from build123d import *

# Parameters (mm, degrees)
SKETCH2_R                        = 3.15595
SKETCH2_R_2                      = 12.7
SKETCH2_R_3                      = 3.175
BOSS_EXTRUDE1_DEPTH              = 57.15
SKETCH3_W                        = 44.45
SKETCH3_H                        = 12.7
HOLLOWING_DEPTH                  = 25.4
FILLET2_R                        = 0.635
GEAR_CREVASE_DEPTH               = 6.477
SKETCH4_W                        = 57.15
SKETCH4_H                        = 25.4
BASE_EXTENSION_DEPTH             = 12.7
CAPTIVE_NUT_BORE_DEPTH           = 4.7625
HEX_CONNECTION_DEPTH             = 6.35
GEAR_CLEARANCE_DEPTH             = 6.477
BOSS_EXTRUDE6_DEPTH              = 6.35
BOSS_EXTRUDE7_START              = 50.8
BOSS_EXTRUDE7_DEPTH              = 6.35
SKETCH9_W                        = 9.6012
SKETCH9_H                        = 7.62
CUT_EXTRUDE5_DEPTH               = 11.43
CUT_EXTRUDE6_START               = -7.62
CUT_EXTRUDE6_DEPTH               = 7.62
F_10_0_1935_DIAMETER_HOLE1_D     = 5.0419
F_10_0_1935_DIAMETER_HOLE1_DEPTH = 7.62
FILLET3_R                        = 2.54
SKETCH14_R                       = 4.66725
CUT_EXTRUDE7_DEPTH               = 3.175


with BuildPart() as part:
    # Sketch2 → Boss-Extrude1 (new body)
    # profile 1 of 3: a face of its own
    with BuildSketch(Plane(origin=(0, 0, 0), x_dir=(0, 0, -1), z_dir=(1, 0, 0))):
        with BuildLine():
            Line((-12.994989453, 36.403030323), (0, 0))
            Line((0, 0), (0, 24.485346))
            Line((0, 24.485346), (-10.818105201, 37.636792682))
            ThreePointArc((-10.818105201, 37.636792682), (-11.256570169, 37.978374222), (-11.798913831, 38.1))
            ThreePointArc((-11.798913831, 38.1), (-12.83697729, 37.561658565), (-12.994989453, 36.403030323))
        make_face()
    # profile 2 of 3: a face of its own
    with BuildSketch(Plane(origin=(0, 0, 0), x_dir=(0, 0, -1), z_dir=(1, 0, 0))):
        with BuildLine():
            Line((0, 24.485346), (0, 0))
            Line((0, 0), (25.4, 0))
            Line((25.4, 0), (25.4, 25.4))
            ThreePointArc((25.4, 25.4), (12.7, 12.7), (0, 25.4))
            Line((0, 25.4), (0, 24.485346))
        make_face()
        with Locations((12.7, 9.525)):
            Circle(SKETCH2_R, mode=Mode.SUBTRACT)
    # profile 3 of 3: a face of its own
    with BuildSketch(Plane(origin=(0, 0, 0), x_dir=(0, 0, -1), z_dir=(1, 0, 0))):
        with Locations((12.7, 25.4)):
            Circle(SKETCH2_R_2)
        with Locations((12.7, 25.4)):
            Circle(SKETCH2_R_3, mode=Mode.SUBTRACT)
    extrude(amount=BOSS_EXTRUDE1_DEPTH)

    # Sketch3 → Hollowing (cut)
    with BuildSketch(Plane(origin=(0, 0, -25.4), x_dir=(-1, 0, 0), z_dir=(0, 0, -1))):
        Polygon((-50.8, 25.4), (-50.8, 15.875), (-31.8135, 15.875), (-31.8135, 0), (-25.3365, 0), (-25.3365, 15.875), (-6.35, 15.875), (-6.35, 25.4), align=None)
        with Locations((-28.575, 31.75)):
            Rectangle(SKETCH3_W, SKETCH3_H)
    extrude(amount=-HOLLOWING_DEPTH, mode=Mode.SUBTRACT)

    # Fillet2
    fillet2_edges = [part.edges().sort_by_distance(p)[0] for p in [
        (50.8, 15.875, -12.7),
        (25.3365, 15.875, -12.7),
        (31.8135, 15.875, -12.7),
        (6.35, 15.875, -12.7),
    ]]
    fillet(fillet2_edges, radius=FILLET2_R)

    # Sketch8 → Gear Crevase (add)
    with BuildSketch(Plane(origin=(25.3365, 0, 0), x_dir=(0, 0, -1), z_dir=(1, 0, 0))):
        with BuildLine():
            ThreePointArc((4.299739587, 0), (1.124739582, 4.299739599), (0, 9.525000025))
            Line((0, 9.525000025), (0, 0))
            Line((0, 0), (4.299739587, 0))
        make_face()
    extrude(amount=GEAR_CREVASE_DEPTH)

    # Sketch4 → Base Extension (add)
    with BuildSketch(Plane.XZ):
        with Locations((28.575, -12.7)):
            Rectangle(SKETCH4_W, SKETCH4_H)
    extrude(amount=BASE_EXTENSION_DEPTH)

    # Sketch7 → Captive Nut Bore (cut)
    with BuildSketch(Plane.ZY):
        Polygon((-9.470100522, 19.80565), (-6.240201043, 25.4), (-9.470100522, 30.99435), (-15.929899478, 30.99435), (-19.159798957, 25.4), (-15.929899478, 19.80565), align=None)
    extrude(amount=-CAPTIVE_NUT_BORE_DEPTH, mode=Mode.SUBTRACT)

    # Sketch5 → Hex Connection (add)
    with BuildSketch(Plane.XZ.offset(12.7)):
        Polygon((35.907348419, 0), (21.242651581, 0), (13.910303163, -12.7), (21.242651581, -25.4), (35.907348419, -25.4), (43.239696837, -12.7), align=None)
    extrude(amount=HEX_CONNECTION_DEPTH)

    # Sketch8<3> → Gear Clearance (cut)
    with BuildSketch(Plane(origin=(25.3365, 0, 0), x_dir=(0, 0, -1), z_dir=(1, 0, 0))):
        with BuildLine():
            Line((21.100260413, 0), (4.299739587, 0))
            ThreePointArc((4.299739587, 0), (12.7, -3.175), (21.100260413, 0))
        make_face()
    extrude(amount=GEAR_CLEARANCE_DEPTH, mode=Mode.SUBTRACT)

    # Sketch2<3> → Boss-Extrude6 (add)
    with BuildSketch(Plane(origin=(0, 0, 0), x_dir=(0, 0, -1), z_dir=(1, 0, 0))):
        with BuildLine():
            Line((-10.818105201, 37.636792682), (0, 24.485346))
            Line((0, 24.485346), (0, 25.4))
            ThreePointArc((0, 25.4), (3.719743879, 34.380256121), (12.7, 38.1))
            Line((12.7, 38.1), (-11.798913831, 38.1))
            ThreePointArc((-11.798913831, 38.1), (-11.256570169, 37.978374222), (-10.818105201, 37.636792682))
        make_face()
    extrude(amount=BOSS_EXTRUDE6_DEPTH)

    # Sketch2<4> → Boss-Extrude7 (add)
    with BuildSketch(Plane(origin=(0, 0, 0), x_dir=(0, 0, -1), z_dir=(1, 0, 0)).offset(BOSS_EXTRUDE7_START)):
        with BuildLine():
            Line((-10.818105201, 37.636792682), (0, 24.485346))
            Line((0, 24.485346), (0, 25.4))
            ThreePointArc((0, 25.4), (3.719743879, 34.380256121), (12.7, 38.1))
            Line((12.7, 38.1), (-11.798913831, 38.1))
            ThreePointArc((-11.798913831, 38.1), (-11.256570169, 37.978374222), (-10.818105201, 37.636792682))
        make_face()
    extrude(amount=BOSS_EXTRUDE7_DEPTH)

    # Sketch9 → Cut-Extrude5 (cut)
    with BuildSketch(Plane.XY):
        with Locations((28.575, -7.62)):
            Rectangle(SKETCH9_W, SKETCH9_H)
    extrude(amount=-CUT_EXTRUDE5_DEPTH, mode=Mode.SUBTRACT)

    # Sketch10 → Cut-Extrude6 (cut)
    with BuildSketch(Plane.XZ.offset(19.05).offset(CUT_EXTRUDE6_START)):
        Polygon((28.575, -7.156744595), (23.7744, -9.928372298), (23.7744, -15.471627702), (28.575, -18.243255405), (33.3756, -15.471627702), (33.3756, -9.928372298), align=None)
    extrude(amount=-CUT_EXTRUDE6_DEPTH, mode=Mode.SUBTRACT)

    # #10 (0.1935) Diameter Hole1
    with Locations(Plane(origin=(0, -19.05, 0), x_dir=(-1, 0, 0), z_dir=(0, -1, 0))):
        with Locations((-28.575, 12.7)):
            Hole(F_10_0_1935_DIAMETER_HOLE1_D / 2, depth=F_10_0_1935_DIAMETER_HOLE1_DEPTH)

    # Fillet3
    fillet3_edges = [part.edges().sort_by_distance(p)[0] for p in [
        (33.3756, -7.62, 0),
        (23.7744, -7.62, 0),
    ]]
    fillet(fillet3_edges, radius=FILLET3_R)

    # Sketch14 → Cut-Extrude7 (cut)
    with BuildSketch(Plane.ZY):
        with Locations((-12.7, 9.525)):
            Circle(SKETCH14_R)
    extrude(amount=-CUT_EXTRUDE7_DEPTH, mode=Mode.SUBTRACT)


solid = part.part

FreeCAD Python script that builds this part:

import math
import FreeCAD as App
import Part
import Sketcher

V = App.Vector
Q = App.Units.Quantity


def edges_at(feature, points):
    """Names of the edges that pass closest to the given points."""
    edges = feature.Shape.Edges
    near = lambda p: min(range(len(edges)), key=lambda i: edges[i].distToShape(Part.Vertex(*p))[0])
    return sorted({f"Edge{near(p) + 1}" for p in points})


def add_polygon(sketch, points):
    """Adds a closed chain of lines whose ends are joined by coincident constraints."""
    first, n = sketch.GeometryCount, len(points)
    for a, b in zip(points, points[1:] + points[:1]):
        sketch.addGeometry(Part.LineSegment(App.Vector(*a, 0), App.Vector(*b, 0)), False)
    for i in range(n):
        sketch.addConstraint(Sketcher.Constraint("Coincident", first + i, 2, first + (i + 1) % n, 1))

doc = App.newDocument("Part")
body = doc.addObject("PartDesign::Body", "Body")

# Sketch on YZ plane
sketch1 = doc.addObject("Sketcher::SketchObject", "Sketch")
body.addObject(sketch1)
sketch1.AttachmentSupport = (doc.YZ_Plane, [""])
sketch1.MapMode = "FlatFace"
sketch1.addGeometry(Part.LineSegment(V(36.40303, 12.994989, 0), V(0, 0, 0)), False)
sketch1.addGeometry(Part.LineSegment(V(0, 0, 0), V(0, -25.4, 0)), False)
sketch1.addGeometry(Part.LineSegment(V(0, -25.4, 0), V(25.4, -25.4, 0)), False)
sketch1.addGeometry(Part.ArcOfCircle(Part.Circle(V(25.4, -12.7, 0), V(0, 0, 1), 12.7), math.radians(-90), math.radians(90)), False)
sketch1.addGeometry(Part.LineSegment(V(25.4, 0, 0), V(24.485346, 0, 0)), False)
sketch1.addGeometry(Part.LineSegment(V(24.485346, 0, 0), V(37.636793, 10.818105, 0)), False)
sketch1.addGeometry(Part.ArcOfCircle(Part.Circle(V(36.83, 11.798914, 0), V(0, 0, 1), 1.27), math.radians(-50.56), math.radians(0)), False)
sketch1.addGeometry(Part.ArcOfCircle(Part.Circle(V(36.83, 11.798914, 0), V(0, 0, 1), 1.27), math.radians(0), math.radians(109.645319)), False)
sketch1.addGeometry(Part.Circle(V(9.525, -12.7, 0), V(0, 0, 1), 3.15595), False)
sketch1.addGeometry(Part.Circle(V(25.4, -12.7, 0), V(0, 0, 1), 3.175), False)
sketch1.addConstraint(Sketcher.Constraint("Coincident", 0, 2, 1, 1))
sketch1.addConstraint(Sketcher.Constraint("Coincident", 1, 2, 2, 1))
sketch1.addConstraint(Sketcher.Constraint("Tangent", 2, 2, 3, 1))
sketch1.addConstraint(Sketcher.Constraint("Tangent", 3, 2, 4, 1))
sketch1.addConstraint(Sketcher.Constraint("Coincident", 4, 2, 5, 1))
sketch1.addConstraint(Sketcher.Constraint("Tangent", 5, 2, 6, 1))
sketch1.addConstraint(Sketcher.Constraint("Tangent", 6, 2, 7, 1))
sketch1.addConstraint(Sketcher.Constraint("Tangent", 7, 2, 0, 1))
sketch1.addConstraint(Sketcher.Constraint("Vertical", 1))
sketch1.addConstraint(Sketcher.Constraint("Horizontal", 2))
sketch1.addConstraint(Sketcher.Constraint("Horizontal", 4))
sketch1.addConstraint(Sketcher.Constraint("Coincident", 0, 2, -1, 1))
sketch1.addConstraint(Sketcher.Constraint("Coincident", 9, 3, 3, 3))
sketch1.addConstraint(Sketcher.Constraint("Equal", 6, 7))
sketch1.addConstraint(Sketcher.Constraint("PointOnObject", 3, 2, -1))
sketch1.addConstraint(Sketcher.Constraint("Horizontal", 3, 3, 8, 3))
sketch1.addConstraint(Sketcher.Constraint("Horizontal", 7, 3, 6, 2))
sketch1.addConstraint(Sketcher.Constraint("Equal", 2, 1))
sketch1.addConstraint(Sketcher.Constraint("Radius", 3, Q("0.5 in")))
sketch1.addConstraint(Sketcher.Constraint("Diameter", 9, Q("0.25 in")))
sketch1.addConstraint(Sketcher.Constraint("Radius", 6, Q("0.05 in")))
sketch1.addConstraint(Sketcher.Constraint("Diameter", 8, Q("0.2485 in")))
sketch1.addConstraint(Sketcher.Constraint("DistanceX", -1, 1, 6, 2, Q("1.5 in")))
sketch1.addConstraint(Sketcher.Constraint("Angle", 5, Q("39.44 deg")))
sketch1.addConstraint(Sketcher.Constraint("DistanceX", -1, 1, 8, 3, Q("0.375 in")))
sketch1.addConstraint(Sketcher.Constraint("Distance", 5, 17.02915))
pad1 = doc.addObject("PartDesign::Pad", "Pad")
body.addObject(pad1)
pad1.Profile = sketch1
pad1.Length = Q("2.25 in")

# Sketch on XY plane
sketch2 = doc.addObject("Sketcher::SketchObject", "Sketch001")
body.addObject(sketch2)
sketch2.AttachmentSupport = (doc.XY_Plane, [""])
sketch2.MapMode = "FlatFace"
sketch2.AttachmentOffset = App.Placement(V(0, 0, -1 * 25.4), App.Rotation())
add_polygon(sketch2, [(50.8, 15.875), (31.8135, 15.875), (31.8135, 0), (25.3365, 0), (25.3365, 15.875), (6.35, 15.875), (6.35, 38.1), (50.8, 38.1)])  # lines 0-7
sketch2.addConstraint(Sketcher.Constraint("Horizontal", 0))
sketch2.addConstraint(Sketcher.Constraint("Vertical", 1))
sketch2.addConstraint(Sketcher.Constraint("Horizontal", 2))
sketch2.addConstraint(Sketcher.Constraint("Vertical", 3))
sketch2.addConstraint(Sketcher.Constraint("Horizontal", 4))
sketch2.addConstraint(Sketcher.Constraint("Vertical", 5))
sketch2.addConstraint(Sketcher.Constraint("Horizontal", 6))
sketch2.addConstraint(Sketcher.Constraint("Vertical", 7))
sketch2.addConstraint(Sketcher.Constraint("PointOnObject", 1, 2, -1))
sketch2.addConstraint(Sketcher.Constraint("Horizontal", 0, 2, 3, 2))
sketch2.addConstraint(Sketcher.Constraint("Equal", 0, 4))
sketch2.addConstraint(Sketcher.Constraint("DistanceX", -1, 1, 6, 2, Q("2 in")))
sketch2.addConstraint(Sketcher.Constraint("DistanceX", 6, 1, 6, 2, Q("1.75 in")))
sketch2.addConstraint(Sketcher.Constraint("DistanceY", -1, 1, 5, 2, Q("1.5 in")))
sketch2.addConstraint(Sketcher.Constraint("DistanceX", 2, 2, 2, 1, Q("0.255 in")))
sketch2.addConstraint(Sketcher.Constraint("DistanceY", 1, 2, 1, 1, Q("0.625 in")))
pocket1 = doc.addObject("PartDesign::Pocket", "Pocket")
body.addObject(pocket1)
pocket1.Profile = sketch2
pocket1.Length = Q("1 in")
pocket1.Reversed = True
doc.recompute()

fillet = doc.addObject("PartDesign::Fillet", "Fillet")
body.addObject(fillet)
fillet.Base = (pocket1, edges_at(pocket1, [
    (50.8, 15.875, -12.7),
    (25.337, 15.875, -12.7),
    (31.814, 15.875, -12.7),
    (6.35, 15.875, -12.7),
]))
fillet.Radius = Q("0.025 in")

# Sketch on YZ plane
sketch3 = doc.addObject("Sketcher::SketchObject", "Sketch002")
body.addObject(sketch3)
sketch3.AttachmentSupport = (doc.YZ_Plane, [""])
sketch3.MapMode = "FlatFace"
sketch3.AttachmentOffset = App.Placement(V(0, 0, 0.9975 * 25.4), App.Rotation())
sketch3.addGeometry(Part.ArcOfCircle(Part.Circle(V(9.525, -12.7, 0), V(0, 0, 1), 12.7), math.radians(90), math.radians(138.590378)), False)
sketch3.addGeometry(Part.LineSegment(V(9.525, 0, 0), V(0, 0, 0)), False)
sketch3.addGeometry(Part.LineSegment(V(0, 0, 0), V(0, -4.29974, 0)), False)
sketch3.addConstraint(Sketcher.Constraint("Tangent", 0, 1, 1, 1))
sketch3.addConstraint(Sketcher.Constraint("Coincident", 1, 2, 2, 1))
sketch3.addConstraint(Sketcher.Constraint("Coincident", 2, 2, 0, 2))
sketch3.addConstraint(Sketcher.Constraint("Horizontal", 1))
sketch3.addConstraint(Sketcher.Constraint("Vertical", 2))
sketch3.addConstraint(Sketcher.Constraint("Coincident", 1, 2, -1, 1))
sketch3.addConstraint(Sketcher.Constraint("Radius", 0, Q("0.5 in")))
sketch3.addConstraint(Sketcher.Constraint("DistanceX", 1, 2, 1, 1, Q("0.375 in")))
pad2 = doc.addObject("PartDesign::Pad", "Pad001")
body.addObject(pad2)
pad2.Profile = sketch3
pad2.Length = Q("0.255 in")

# Sketch on XZ plane
sketch4 = doc.addObject("Sketcher::SketchObject", "Sketch003")
body.addObject(sketch4)
sketch4.AttachmentSupport = (doc.XZ_Plane, [""])
sketch4.MapMode = "FlatFace"
add_polygon(sketch4, [(0, 0), (0, -25.4), (57.15, -25.4), (57.15, 0)])  # lines 0-3
sketch4.addConstraint(Sketcher.Constraint("Vertical", 0))
sketch4.addConstraint(Sketcher.Constraint("Horizontal", 1))
sketch4.addConstraint(Sketcher.Constraint("Vertical", 2))
sketch4.addConstraint(Sketcher.Constraint("Horizontal", 3))
sketch4.addConstraint(Sketcher.Constraint("Coincident", 3, 2, -1, 1))
sketch4.addConstraint(Sketcher.Constraint("DistanceY", 0, 2, 0, 1, Q("1 in")))
sketch4.addConstraint(Sketcher.Constraint("DistanceX", 1, 1, 1, 2, Q("2.25 in")))
pad3 = doc.addObject("PartDesign::Pad", "Pad002")
body.addObject(pad3)
pad3.Profile = sketch4
pad3.Length = Q("0.5 in")

# Sketch on YZ plane
sketch5 = doc.addObject("Sketcher::SketchObject", "Sketch004")
body.addObject(sketch5)
sketch5.AttachmentSupport = (doc.YZ_Plane, [""])
sketch5.MapMode = "FlatFace"
add_polygon(sketch5, [(19.80565, -9.470101), (25.4, -6.240201), (30.99435, -9.470101), (30.99435, -15.929899), (25.4, -19.159799), (19.80565, -15.929899)])  # lines 0-5
sketch5.addConstraint(Sketcher.Constraint("Vertical", 2))
sketch5.addConstraint(Sketcher.Constraint("Vertical", 5))
sketch5.addConstraint(Sketcher.Constraint("Parallel", 0, 3))
sketch5.addConstraint(Sketcher.Constraint("Parallel", 1, 4))
sketch5.addConstraint(Sketcher.Constraint("Horizontal", 2, 2, 4, 2))
sketch5.addConstraint(Sketcher.Constraint("Horizontal", 1, 2, 5, 2))
sketch5.addConstraint(Sketcher.Constraint("Vertical", 0, 2, 3, 2))
sketch5.addConstraint(Sketcher.Constraint("DistanceX", -1, 1, 0, 2, Q("1 in")))
sketch5.addConstraint(Sketcher.Constraint("Angle", 0, Q("30 deg")))
sketch5.addConstraint(Sketcher.Constraint("DistanceY", 2, 2, 2, 1, 6.459799))
sketch5.addConstraint(Sketcher.Constraint("DistanceX", 4, 2, 2, 2, Q("0.4405 in")))
sketch5.addConstraint(Sketcher.Constraint("DistanceY", 0, 2, -1, 1, 6.240201))
pocket2 = doc.addObject("PartDesign::Pocket", "Pocket001")
body.addObject(pocket2)
pocket2.Profile = sketch5
pocket2.Length = Q("0.1875 in")
pocket2.Reversed = True

# Sketch on XZ plane
sketch6 = doc.addObject("Sketcher::SketchObject", "Sketch005")
body.addObject(sketch6)
sketch6.AttachmentSupport = (doc.XZ_Plane, [""])
sketch6.MapMode = "FlatFace"
sketch6.AttachmentOffset = App.Placement(V(0, 0, 0.5 * 25.4), App.Rotation())
add_polygon(sketch6, [(35.907348, 0), (21.242652, 0), (13.910303, -12.7), (21.242652, -25.4), (35.907348, -25.4), (43.239697, -12.7)])  # lines 0-5
sketch6.addConstraint(Sketcher.Constraint("Horizontal", 0))
sketch6.addConstraint(Sketcher.Constraint("Horizontal", 3))
sketch6.addConstraint(Sketcher.Constraint("PointOnObject", 0, 2, -1))
sketch6.addConstraint(Sketcher.Constraint("Parallel", 1, 4))
sketch6.addConstraint(Sketcher.Constraint("Parallel", 2, 5))
sketch6.addConstraint(Sketcher.Constraint("Horizontal", 1, 2, 4, 2))
sketch6.addConstraint(Sketcher.Constraint("Vertical", 0, 2, 2, 2))
sketch6.addConstraint(Sketcher.Constraint("Vertical", 3, 2, 5, 2))
sketch6.addConstraint(Sketcher.Constraint("DistanceY", 2, 2, -1, 1, Q("1 in")))
sketch6.addConstraint(Sketcher.Constraint("Angle", 1, Q("-120 deg")))
sketch6.addConstraint(Sketcher.Constraint("DistanceX", 0, 2, 0, 1, 14.664697))
sketch6.addConstraint(Sketcher.Constraint("DistanceX", -1, 1, 0, 2, 21.242652))
pad4 = doc.addObject("PartDesign::Pad", "Pad003")
body.addObject(pad4)
pad4.Profile = sketch6
pad4.Length = Q("0.25 in")

# Sketch on YZ plane
sketch7 = doc.addObject("Sketcher::SketchObject", "Sketch006")
body.addObject(sketch7)
sketch7.AttachmentSupport = (doc.YZ_Plane, [""])
sketch7.MapMode = "FlatFace"
sketch7.AttachmentOffset = App.Placement(V(0, 0, 0.9975 * 25.4), App.Rotation())
sketch7.addGeometry(Part.LineSegment(V(0, -21.10026, 0), V(0, -4.29974, 0)), False)
sketch7.addGeometry(Part.ArcOfCircle(Part.Circle(V(9.525, -12.7, 0), V(0, 0, 1), 12.7), math.radians(138.590378), math.radians(221.409622)), False)
sketch7.addConstraint(Sketcher.Constraint("Coincident", 0, 1, 1, 2))
sketch7.addConstraint(Sketcher.Constraint("Coincident", 1, 1, 0, 2))
sketch7.addConstraint(Sketcher.Constraint("Vertical", 0))
sketch7.addConstraint(Sketcher.Constraint("PointOnObject", 0, 1, -2))
sketch7.addConstraint(Sketcher.Constraint("Radius", 1, Q("0.5 in")))
sketch7.addConstraint(Sketcher.Constraint("DistanceY", 1, 3, -1, 1, Q("0.5 in")))
sketch7.addConstraint(Sketcher.Constraint("DistanceX", -1, 1, 1, 3, Q("0.375 in")))
pocket3 = doc.addObject("PartDesign::Pocket", "Pocket002")
body.addObject(pocket3)
pocket3.Profile = sketch7
pocket3.Length = Q("0.255 in")
pocket3.Reversed = True

# Sketch on YZ plane
sketch8 = doc.addObject("Sketcher::SketchObject", "Sketch007")
body.addObject(sketch8)
sketch8.AttachmentSupport = (doc.YZ_Plane, [""])
sketch8.MapMode = "FlatFace"
sketch8.addGeometry(Part.LineSegment(V(37.636793, 10.818105, 0), V(24.485346, 0, 0)), False)
sketch8.addGeometry(Part.LineSegment(V(24.485346, 0, 0), V(25.4, 0, 0)), False)
sketch8.addGeometry(Part.ArcOfCircle(Part.Circle(V(25.4, -12.7, 0), V(0, 0, 1), 12.7), math.radians(0), math.radians(90)), False)
sketch8.addGeometry(Part.LineSegment(V(38.1, -12.7, 0), V(38.1, 11.798914, 0)), False)
sketch8.addGeometry(Part.ArcOfCircle(Part.Circle(V(36.83, 11.798914, 0), V(0, 0, 1), 1.27), math.radians(-50.56), math.radians(0)), False)
sketch8.addConstraint(Sketcher.Constraint("Coincident", 0, 2, 1, 1))
sketch8.addConstraint(Sketcher.Constraint("Tangent", 1, 2, 2, 2))
sketch8.addConstraint(Sketcher.Constraint("Tangent", 2, 1, 3, 1))
sketch8.addConstraint(Sketcher.Constraint("Tangent", 3, 2, 4, 2))
sketch8.addConstraint(Sketcher.Constraint("Tangent", 4, 1, 0, 1))
sketch8.addConstraint(Sketcher.Constraint("Horizontal", 1))
sketch8.addConstraint(Sketcher.Constraint("Vertical", 3))
sketch8.addConstraint(Sketcher.Constraint("PointOnObject", 0, 2, -1))
sketch8.addConstraint(Sketcher.Constraint("Radius", 2, Q("0.5 in")))
sketch8.addConstraint(Sketcher.Constraint("Radius", 4, Q("0.05 in")))
sketch8.addConstraint(Sketcher.Constraint("DistanceX", -1, 1, 2, 3, Q("1 in")))
sketch8.addConstraint(Sketcher.Constraint("Angle", 0, Q("-140.56 deg")))
sketch8.addConstraint(Sketcher.Constraint("Distance", 0, 17.02915))
pad5 = doc.addObject("PartDesign::Pad", "Pad004")
body.addObject(pad5)
pad5.Profile = sketch8
pad5.Length = Q("0.25 in")

# Sketch on YZ plane
sketch9 = doc.addObject("Sketcher::SketchObject", "Sketch008")
body.addObject(sketch9)
sketch9.AttachmentSupport = (doc.YZ_Plane, [""])
sketch9.MapMode = "FlatFace"
sketch9.AttachmentOffset = App.Placement(V(0, 0, 2 * 25.4), App.Rotation())
sketch9.addGeometry(Part.LineSegment(V(37.636793, 10.818105, 0), V(24.485346, 0, 0)), False)
sketch9.addGeometry(Part.LineSegment(V(24.485346, 0, 0), V(25.4, 0, 0)), False)
sketch9.addGeometry(Part.ArcOfCircle(Part.Circle(V(25.4, -12.7, 0), V(0, 0, 1), 12.7), math.radians(0), math.radians(90)), False)
sketch9.addGeometry(Part.LineSegment(V(38.1, -12.7, 0), V(38.1, 11.798914, 0)), False)
sketch9.addGeometry(Part.ArcOfCircle(Part.Circle(V(36.83, 11.798914, 0), V(0, 0, 1), 1.27), math.radians(-50.56), math.radians(0)), False)
sketch9.addConstraint(Sketcher.Constraint("Coincident", 0, 2, 1, 1))
sketch9.addConstraint(Sketcher.Constraint("Tangent", 1, 2, 2, 2))
sketch9.addConstraint(Sketcher.Constraint("Tangent", 2, 1, 3, 1))
sketch9.addConstraint(Sketcher.Constraint("Tangent", 3, 2, 4, 2))
sketch9.addConstraint(Sketcher.Constraint("Tangent", 4, 1, 0, 1))
sketch9.addConstraint(Sketcher.Constraint("Horizontal", 1))
sketch9.addConstraint(Sketcher.Constraint("Vertical", 3))
sketch9.addConstraint(Sketcher.Constraint("PointOnObject", 0, 2, -1))
sketch9.addConstraint(Sketcher.Constraint("Radius", 2, Q("0.5 in")))
sketch9.addConstraint(Sketcher.Constraint("Radius", 4, Q("0.05 in")))
sketch9.addConstraint(Sketcher.Constraint("DistanceX", -1, 1, 2, 3, Q("1 in")))
sketch9.addConstraint(Sketcher.Constraint("Angle", 0, Q("-140.56 deg")))
sketch9.addConstraint(Sketcher.Constraint("Distance", 0, 17.02915))
pad6 = doc.addObject("PartDesign::Pad", "Pad005")
body.addObject(pad6)
pad6.Profile = sketch9
pad6.Length = Q("0.25 in")

# Sketch on XY plane
sketch10 = doc.addObject("Sketcher::SketchObject", "Sketch009")
body.addObject(sketch10)
sketch10.AttachmentSupport = (doc.XY_Plane, [""])
sketch10.MapMode = "FlatFace"
add_polygon(sketch10, [(23.7744, -3.81), (23.7744, -11.43), (33.3756, -11.43), (33.3756, -3.81)])  # lines 0-3
sketch10.addConstraint(Sketcher.Constraint("Vertical", 0))
sketch10.addConstraint(Sketcher.Constraint("Horizontal", 1))
sketch10.addConstraint(Sketcher.Constraint("Vertical", 2))
sketch10.addConstraint(Sketcher.Constraint("Horizontal", 3))
sketch10.addConstraint(Sketcher.Constraint("DistanceY", 0, 2, 0, 1, Q("0.3 in")))
sketch10.addConstraint(Sketcher.Constraint("DistanceX", 1, 1, 1, 2, Q("0.378 in")))
sketch10.addConstraint(Sketcher.Constraint("DistanceY", 0, 2, -1, 1, Q("0.45 in")))
sketch10.addConstraint(Sketcher.Constraint("DistanceX", -1, 1, 0, 2, Q("0.936 in")))
pocket4 = doc.addObject("PartDesign::Pocket", "Pocket003")
body.addObject(pocket4)
pocket4.Profile = sketch10
pocket4.Length = Q("0.45 in")

# Sketch on XZ plane
sketch11 = doc.addObject("Sketcher::SketchObject", "Sketch010")
body.addObject(sketch11)
sketch11.AttachmentSupport = (doc.XZ_Plane, [""])
sketch11.MapMode = "FlatFace"
sketch11.AttachmentOffset = App.Placement(V(0, 0, 0.45 * 25.4), App.Rotation())
add_polygon(sketch11, [(28.575, -7.156745), (23.7744, -9.928372), (23.7744, -15.471628), (28.575, -18.243255), (33.3756, -15.471628), (33.3756, -9.928372)])  # lines 0-5
sketch11.addConstraint(Sketcher.Constraint("Vertical", 1))
sketch11.addConstraint(Sketcher.Constraint("Vertical", 4))
sketch11.addConstraint(Sketcher.Constraint("Parallel", 0, 3))
sketch11.addConstraint(Sketcher.Constraint("Parallel", 2, 5))
sketch11.addConstraint(Sketcher.Constraint("Horizontal", 1, 2, 3, 2))
sketch11.addConstraint(Sketcher.Constraint("Horizontal", 0, 2, 4, 2))
sketch11.addConstraint(Sketcher.Constraint("Vertical", 2, 2, 5, 2))
sketch11.addConstraint(Sketcher.Constraint("Angle", 0, Q("-150 deg")))
sketch11.addConstraint(Sketcher.Constraint("DistanceX", -1, 1, 0, 2, Q("0.936 in")))
sketch11.addConstraint(Sketcher.Constraint("DistanceX", -1, 1, 2, 2, Q("1.125 in")))
sketch11.addConstraint(Sketcher.Constraint("DistanceY", 1, 2, 1, 1, 5.543255))
sketch11.addConstraint(Sketcher.Constraint("DistanceY", 0, 2, -1, 1, 9.928372))
pocket5 = doc.addObject("PartDesign::Pocket", "Pocket004")
body.addObject(pocket5)
pocket5.Profile = sketch11
pocket5.Length = Q("0.3 in")

# Sketch on XZ plane
sketch12 = doc.addObject("Sketcher::SketchObject", "Sketch011")
body.addObject(sketch12)
sketch12.AttachmentSupport = (doc.XZ_Plane, [""])
sketch12.MapMode = "FlatFace"
sketch12.AttachmentOffset = App.Placement(V(0, 0, 0.75 * 25.4), App.Rotation())
sketch12.addGeometry(Part.Circle(V(28.575, -12.7, 0), V(0, 0, 1), 2.52095), False)
sketch12.addConstraint(Sketcher.Constraint("Diameter", 0, Q("0.1985 in")))
sketch12.addConstraint(Sketcher.Constraint("DistanceY", 0, 3, -1, 1, Q("0.5 in")))
sketch12.addConstraint(Sketcher.Constraint("DistanceX", -1, 1, 0, 3, Q("1.125 in")))
doc.recompute()
hole = doc.addObject("PartDesign::Hole", "Hole")
body.addObject(hole)
hole.Profile = sketch12
hole.ThreadType = "None"
hole.Diameter = Q("0.1985 in")
hole.DepthType = "Dimension"
hole.Depth = Q("0.3 in")
hole.DrillPoint = "Flat"
doc.recompute()

fillet2 = doc.addObject("PartDesign::Fillet", "Fillet001")
body.addObject(fillet2)
fillet2.Base = (hole, edges_at(hole, [(33.376, -7.62, 0), (23.774, -7.62, 0)]))
fillet2.Radius = Q("0.1 in")

# Sketch on YZ plane
sketch13 = doc.addObject("Sketcher::SketchObject", "Sketch012")
body.addObject(sketch13)
sketch13.AttachmentSupport = (doc.YZ_Plane, [""])
sketch13.MapMode = "FlatFace"
sketch13.addGeometry(Part.Circle(V(9.525, -12.7, 0), V(0, 0, 1), 4.66725), False)
sketch13.addConstraint(Sketcher.Constraint("Diameter", 0, Q("0.3675 in")))
sketch13.addConstraint(Sketcher.Constraint("DistanceY", 0, 3, -1, 1, Q("0.5 in")))
sketch13.addConstraint(Sketcher.Constraint("DistanceX", -1, 1, 0, 3, Q("0.375 in")))
pocket6 = doc.addObject("PartDesign::Pocket", "Pocket005")
body.addObject(pocket6)
pocket6.Profile = sketch13
pocket6.Length = Q("0.125 in")
pocket6.Reversed = True

doc.recompute()
